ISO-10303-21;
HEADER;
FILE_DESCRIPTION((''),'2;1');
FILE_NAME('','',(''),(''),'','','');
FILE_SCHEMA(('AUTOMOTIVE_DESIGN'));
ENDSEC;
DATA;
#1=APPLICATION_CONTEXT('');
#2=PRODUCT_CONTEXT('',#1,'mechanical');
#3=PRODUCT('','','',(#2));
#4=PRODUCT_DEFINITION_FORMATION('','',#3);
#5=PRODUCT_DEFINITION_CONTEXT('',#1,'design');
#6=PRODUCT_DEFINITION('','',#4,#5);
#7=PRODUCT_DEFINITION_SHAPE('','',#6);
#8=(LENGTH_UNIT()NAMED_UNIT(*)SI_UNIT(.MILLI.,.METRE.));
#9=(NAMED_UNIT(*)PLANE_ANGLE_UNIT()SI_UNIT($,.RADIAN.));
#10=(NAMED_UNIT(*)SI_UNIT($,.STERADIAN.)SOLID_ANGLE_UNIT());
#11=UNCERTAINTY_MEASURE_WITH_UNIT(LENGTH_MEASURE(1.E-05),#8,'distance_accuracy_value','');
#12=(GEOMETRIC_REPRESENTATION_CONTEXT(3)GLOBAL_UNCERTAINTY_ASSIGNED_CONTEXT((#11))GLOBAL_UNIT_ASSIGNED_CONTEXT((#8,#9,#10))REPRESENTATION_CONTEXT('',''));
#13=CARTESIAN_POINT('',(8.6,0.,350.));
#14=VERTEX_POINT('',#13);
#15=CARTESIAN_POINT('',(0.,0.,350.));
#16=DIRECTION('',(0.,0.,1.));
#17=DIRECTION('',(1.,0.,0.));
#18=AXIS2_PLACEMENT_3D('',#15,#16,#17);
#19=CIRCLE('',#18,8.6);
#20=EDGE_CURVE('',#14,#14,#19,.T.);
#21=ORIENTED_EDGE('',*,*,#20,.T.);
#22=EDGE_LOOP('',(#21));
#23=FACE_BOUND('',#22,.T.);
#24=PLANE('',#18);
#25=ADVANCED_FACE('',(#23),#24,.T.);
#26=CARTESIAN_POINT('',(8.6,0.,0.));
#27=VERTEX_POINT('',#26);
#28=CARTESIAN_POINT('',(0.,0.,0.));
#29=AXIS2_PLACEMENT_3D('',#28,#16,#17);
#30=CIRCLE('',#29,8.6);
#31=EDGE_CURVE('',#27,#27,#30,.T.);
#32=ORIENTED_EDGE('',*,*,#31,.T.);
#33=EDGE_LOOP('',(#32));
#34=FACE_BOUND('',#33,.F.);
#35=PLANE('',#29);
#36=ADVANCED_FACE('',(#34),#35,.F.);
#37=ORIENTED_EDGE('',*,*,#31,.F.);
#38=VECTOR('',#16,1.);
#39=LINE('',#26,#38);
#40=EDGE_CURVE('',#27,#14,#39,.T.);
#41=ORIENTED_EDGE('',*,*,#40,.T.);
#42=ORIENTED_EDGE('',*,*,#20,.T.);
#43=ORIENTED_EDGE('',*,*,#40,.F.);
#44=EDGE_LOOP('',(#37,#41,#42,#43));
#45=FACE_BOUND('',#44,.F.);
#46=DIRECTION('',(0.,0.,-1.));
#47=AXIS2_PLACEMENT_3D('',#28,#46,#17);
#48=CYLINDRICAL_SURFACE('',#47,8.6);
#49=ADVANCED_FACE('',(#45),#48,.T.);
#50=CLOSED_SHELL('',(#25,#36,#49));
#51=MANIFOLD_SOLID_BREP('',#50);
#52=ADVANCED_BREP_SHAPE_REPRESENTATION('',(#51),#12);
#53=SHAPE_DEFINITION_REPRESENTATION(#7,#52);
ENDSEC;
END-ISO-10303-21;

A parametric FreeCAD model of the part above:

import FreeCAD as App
import Part
import Sketcher

V = App.Vector
Q = App.Units.Quantity

doc = App.newDocument("Part")
body = doc.addObject("PartDesign::Body", "Body")

# Sketch on XY plane
sketch1 = body.newObject("Sketcher::SketchObject", "Sketch")
sketch1.AttachmentSupport = (doc.getObject("XY_Plane"), [""])
sketch1.MapMode = "FlatFace"
sketch1.addGeometry(Part.Circle(V(0, 0, 0), V(0, 0, 1), 9), False)
sketch1.addConstraint(Sketcher.Constraint("Coincident", 0, 3, -1, 1))
sketch1.addConstraint(Sketcher.Constraint("Diameter", 0, Q("17.2 mm")))
pad1 = body.newObject("PartDesign::Pad", "Pad")
pad1.Profile = sketch1
pad1.Length = 350

doc.recompute()
